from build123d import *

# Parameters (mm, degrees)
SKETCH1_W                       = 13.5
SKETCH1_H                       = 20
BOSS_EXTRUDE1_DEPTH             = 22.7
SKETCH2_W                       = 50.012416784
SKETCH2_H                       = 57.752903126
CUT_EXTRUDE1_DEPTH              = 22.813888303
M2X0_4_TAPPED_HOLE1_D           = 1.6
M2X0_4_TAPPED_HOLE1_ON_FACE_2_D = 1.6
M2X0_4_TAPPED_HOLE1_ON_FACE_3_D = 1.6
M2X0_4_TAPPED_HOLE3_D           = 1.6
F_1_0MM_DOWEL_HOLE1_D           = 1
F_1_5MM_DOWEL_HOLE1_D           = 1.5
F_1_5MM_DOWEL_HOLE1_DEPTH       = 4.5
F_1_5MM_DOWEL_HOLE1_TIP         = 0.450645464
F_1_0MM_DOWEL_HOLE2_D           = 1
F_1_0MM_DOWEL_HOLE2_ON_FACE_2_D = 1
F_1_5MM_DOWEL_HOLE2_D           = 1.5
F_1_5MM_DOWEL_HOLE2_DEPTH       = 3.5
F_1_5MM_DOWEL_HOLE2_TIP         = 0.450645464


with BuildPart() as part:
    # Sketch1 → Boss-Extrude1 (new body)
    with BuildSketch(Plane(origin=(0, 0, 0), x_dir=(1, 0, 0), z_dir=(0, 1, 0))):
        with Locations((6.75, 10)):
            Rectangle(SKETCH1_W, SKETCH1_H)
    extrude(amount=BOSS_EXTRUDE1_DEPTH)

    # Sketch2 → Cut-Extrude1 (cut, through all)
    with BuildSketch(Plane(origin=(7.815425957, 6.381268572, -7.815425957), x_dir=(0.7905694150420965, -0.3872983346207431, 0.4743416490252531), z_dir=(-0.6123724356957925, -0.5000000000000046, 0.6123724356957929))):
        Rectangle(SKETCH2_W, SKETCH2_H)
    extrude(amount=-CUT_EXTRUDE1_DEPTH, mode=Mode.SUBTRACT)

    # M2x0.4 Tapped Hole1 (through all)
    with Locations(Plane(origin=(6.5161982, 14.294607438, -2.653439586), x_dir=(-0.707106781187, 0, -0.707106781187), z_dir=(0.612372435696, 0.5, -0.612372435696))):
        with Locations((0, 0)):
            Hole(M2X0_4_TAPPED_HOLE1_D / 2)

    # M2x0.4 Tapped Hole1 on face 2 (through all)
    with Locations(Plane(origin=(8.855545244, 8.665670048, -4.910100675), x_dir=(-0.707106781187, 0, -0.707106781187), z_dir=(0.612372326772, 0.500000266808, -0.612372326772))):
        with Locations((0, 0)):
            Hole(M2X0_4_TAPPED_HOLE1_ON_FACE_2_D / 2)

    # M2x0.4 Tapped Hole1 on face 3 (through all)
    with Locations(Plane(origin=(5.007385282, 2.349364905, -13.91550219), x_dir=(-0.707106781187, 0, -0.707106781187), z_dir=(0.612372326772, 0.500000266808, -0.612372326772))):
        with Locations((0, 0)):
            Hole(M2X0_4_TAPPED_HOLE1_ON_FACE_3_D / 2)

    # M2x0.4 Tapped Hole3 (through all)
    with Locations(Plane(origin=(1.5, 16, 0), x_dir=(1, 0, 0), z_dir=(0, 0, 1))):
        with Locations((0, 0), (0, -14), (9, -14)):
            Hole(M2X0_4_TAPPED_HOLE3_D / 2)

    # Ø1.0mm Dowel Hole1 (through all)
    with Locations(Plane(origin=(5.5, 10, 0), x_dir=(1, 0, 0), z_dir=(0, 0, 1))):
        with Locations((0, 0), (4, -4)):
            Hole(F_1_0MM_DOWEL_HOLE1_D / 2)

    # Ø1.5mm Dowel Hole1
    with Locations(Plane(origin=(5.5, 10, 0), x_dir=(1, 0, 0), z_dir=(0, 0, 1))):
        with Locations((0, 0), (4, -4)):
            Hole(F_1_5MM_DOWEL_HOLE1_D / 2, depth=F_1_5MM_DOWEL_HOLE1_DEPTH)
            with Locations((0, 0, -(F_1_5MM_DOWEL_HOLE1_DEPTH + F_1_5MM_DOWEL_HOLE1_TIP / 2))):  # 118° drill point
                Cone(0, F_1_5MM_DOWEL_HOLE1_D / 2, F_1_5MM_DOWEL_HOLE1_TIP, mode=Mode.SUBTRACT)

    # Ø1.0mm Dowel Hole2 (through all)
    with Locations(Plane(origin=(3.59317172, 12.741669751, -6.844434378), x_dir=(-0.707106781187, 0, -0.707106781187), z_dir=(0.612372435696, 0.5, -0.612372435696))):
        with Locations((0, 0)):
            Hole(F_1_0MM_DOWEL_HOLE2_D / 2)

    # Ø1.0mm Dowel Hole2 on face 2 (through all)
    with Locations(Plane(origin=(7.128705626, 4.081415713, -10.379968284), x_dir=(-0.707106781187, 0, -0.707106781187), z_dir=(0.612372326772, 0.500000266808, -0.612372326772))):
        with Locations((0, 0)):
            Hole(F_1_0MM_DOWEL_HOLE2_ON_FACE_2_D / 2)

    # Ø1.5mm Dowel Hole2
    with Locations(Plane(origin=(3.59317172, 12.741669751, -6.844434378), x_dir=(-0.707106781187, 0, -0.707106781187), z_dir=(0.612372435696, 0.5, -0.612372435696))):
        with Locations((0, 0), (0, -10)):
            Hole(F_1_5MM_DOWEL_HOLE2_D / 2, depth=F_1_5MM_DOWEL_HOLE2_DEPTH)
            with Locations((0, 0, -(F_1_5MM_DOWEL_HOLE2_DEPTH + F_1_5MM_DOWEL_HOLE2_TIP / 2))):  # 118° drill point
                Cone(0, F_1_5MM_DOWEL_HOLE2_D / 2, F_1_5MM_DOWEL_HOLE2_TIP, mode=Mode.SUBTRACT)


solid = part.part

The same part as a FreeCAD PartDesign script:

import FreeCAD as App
import Part
import Sketcher

doc = App.newDocument("Part")
params = doc.addObject("Spreadsheet::Sheet", "Params")
for row, (alias, value) in enumerate([
    ("sketch1_height", "20 mm"),
    ("sketch1_width", "13.5 mm"),
    ("pad1_length", "22.7 mm"),
    ("sketch3_diameter", "1.6 mm"),
    ("hole_diameter", "1.6 mm"),
    ("sketch4_diameter", "1.6 mm"),
    ("hole2_diameter", "1.6 mm"),
    ("sketch5_diameter", "1.6 mm"),
    ("hole3_diameter", "1.6 mm"),
    ("sketch6_diameter", "1.6 mm"),
    ("hole4_diameter", "1.6 mm"),
    ("sketch7_diameter", "1 mm"),
    ("hole5_diameter", "1 mm"),
    ("sketch8_diameter", "1.5 mm"),
    ("hole6_diameter", "1.5 mm"),
    ("hole6_depth", "4.5 mm"),
    ("sketch9_diameter", "1 mm"),
    ("hole7_diameter", "1 mm"),
    ("sketch10_diameter", "1 mm"),
    ("hole8_diameter", "1 mm"),
    ("sketch11_diameter", "1.5 mm"),
    ("hole9_diameter", "1.5 mm"),
    ("hole9_depth", "3.5 mm"),
], start=1):
    params.set(f"A{row}", alias)
    params.set(f"B{row}", "=" + value)
    params.setAlias(f"B{row}", alias)

body = doc.addObject("PartDesign::Body", "Body")

# Sketch on XZ plane
sketch1 = body.newObject("Sketcher::SketchObject", "Sketch")
sketch1.AttachmentSupport = (doc.getObject("XZ_Plane"), [""])
sketch1.MapMode = "FlatFace"
sketch1.addGeometry([
    Part.LineSegment(App.Vector(0, -20, 0), App.Vector(0, 0, 0)),
    Part.LineSegment(App.Vector(0, 0, 0), App.Vector(14, 0, 0)),
    Part.LineSegment(App.Vector(14, 0, 0), App.Vector(14, -20, 0)),
    Part.LineSegment(App.Vector(14, -20, 0), App.Vector(0, -20, 0)),
], False)
sketch1.addConstraint([
    Sketcher.Constraint("Coincident", 0, 2, 1, 1),
    Sketcher.Constraint("Coincident", 1, 2, 2, 1),
    Sketcher.Constraint("Coincident", 2, 2, 3, 1),
    Sketcher.Constraint("Coincident", 3, 2, 0, 1),
    Sketcher.Constraint("Vertical", 0),
    Sketcher.Constraint("Horizontal", 1),
    Sketcher.Constraint("Vertical", 2),
    Sketcher.Constraint("Horizontal", 3),
    Sketcher.Constraint("Coincident", 0, 2, -1, 1),
    Sketcher.Constraint("DistanceY", 0, 1, 0, 2, 20.0),
    Sketcher.Constraint("DistanceX", 1, 1, 1, 2, 13.5),
])
sketch1.setExpression("Constraints[9]", "Params.sketch1_height")
sketch1.setExpression("Constraints[10]", "Params.sketch1_width")
pad1 = body.newObject("PartDesign::Pad", "Pad")
pad1.Profile = sketch1
pad1.setExpression("Length", "Params.pad1_length")
pad1.Reversed = True

# Sketch on an angled plane
sketch2 = body.newObject("Sketcher::SketchObject", "Sketch001")
sketch2.Placement = App.Placement(App.Vector(7.815426, 6.381269, -7.815426), App.Rotation(App.Vector(0.790569415, -0.387298335, 0.474341649), App.Vector(0, 0.77459667, 0.632455532), App.Vector(-0.612372436, -0.5, 0.612372436), "ZXY"))
sketch2.addGeometry([
    Part.LineSegment(App.Vector(-25, 29, 0), App.Vector(-25, -29, 0)),
    Part.LineSegment(App.Vector(-25, -29, 0), App.Vector(25, -29, 0)),
    Part.LineSegment(App.Vector(25, -29, 0), App.Vector(25, 29, 0)),
    Part.LineSegment(App.Vector(25, 29, 0), App.Vector(-25, 29, 0)),
], False)
sketch2.addConstraint([
    Sketcher.Constraint("Coincident", 0, 2, 1, 1),
    Sketcher.Constraint("Coincident", 1, 2, 2, 1),
    Sketcher.Constraint("Coincident", 2, 2, 3, 1),
    Sketcher.Constraint("Coincident", 3, 2, 0, 1),
    Sketcher.Constraint("Vertical", 0),
    Sketcher.Constraint("Horizontal", 1),
    Sketcher.Constraint("Vertical", 2),
    Sketcher.Constraint("Horizontal", 3),
    Sketcher.Constraint("Symmetric", 0, 2, 2, 2, -1, 1),
    Sketcher.Constraint("DistanceX", 1, 1, 1, 2, 50.012417),
    Sketcher.Constraint("DistanceY", 0, 2, 0, 1, 57.752903),
])
pocket1 = body.newObject("PartDesign::Pocket", "Pocket")
pocket1.Profile = sketch2
pocket1.Type = "ThroughAll"

# Sketch on an angled plane
sketch3 = body.newObject("Sketcher::SketchObject", "Sketch002")
sketch3.Placement = App.Placement(App.Vector(7.815426, 6.381269, -7.815426), App.Rotation(App.Vector(-0.707106781, 0, -0.707106781), App.Vector(-0.353553391, 0.866025404, 0.353553391), App.Vector(0.612372436, 0.5, -0.612372436), "ZXY"))
sketch3.addGeometry(Part.Circle(App.Vector(-2.7, 9.1, 0), App.Vector(0, 0, 1), 0.8), False)
sketch3.addConstraint([
    Sketcher.Constraint("Diameter", 0, 1.6),
    Sketcher.Constraint("DistanceX", 0, 3, -1, 1, 2.731383),
    Sketcher.Constraint("DistanceY", -1, 1, 0, 3, 9.137537),
])
sketch3.setExpression("Constraints[0]", "Params.sketch3_diameter")
doc.recompute()
hole = body.newObject("PartDesign::Hole", "Hole")
hole.Profile = sketch3
hole.ThreadType = "None"
hole.setExpression("Diameter", "Params.hole_diameter")
hole.DepthType = "ThroughAll"

# Sketch on an angled plane
sketch4 = body.newObject("Sketcher::SketchObject", "Sketch003")
sketch4.Placement = App.Placement(App.Vector(7.815425, 6.381272, -7.815425), App.Rotation(App.Vector(-0.707106781, 0, -0.707106781), App.Vector(-0.353553579, 0.86602525, 0.353553579), App.Vector(0.612372327, 0.500000267, -0.612372327), "ZXY"))
sketch4.addGeometry(Part.Circle(App.Vector(-2.8, 2.6, 0), App.Vector(0, 0, 1), 0.8), False)
sketch4.addConstraint([
    Sketcher.Constraint("Diameter", 0, 1.6),
    Sketcher.Constraint("DistanceX", 0, 3, -1, 1, 2.789851),
    Sketcher.Constraint("DistanceY", -1, 1, 0, 3, 2.637796),
])
sketch4.setExpression("Constraints[0]", "Params.sketch4_diameter")
doc.recompute()
hole2 = body.newObject("PartDesign::Hole", "Hole001")
hole2.Profile = sketch4
hole2.ThreadType = "None"
hole2.setExpression("Diameter", "Params.hole2_diameter")
hole2.DepthType = "ThroughAll"

# Sketch on an angled plane
sketch5 = body.newObject("Sketcher::SketchObject", "Sketch004")
sketch5.Placement = App.Placement(App.Vector(7.815424, 6.381271, -7.815424), App.Rotation(App.Vector(-0.707106781, 0, -0.707106781), App.Vector(-0.353553579, 0.86602525, 0.353553579), App.Vector(0.612372327, 0.500000267, -0.612372327), "ZXY"))
sketch5.addGeometry(Part.Circle(App.Vector(6.3, -4.7, 0), App.Vector(0, 0, 1), 0.8), False)
sketch5.addConstraint([
    Sketcher.Constraint("Diameter", 0, 1.6),
    Sketcher.Constraint("DistanceX", -1, 1, 0, 3, 6.29899),
    Sketcher.Constraint("DistanceY", 0, 3, -1, 1, 4.655645),
])
sketch5.setExpression("Constraints[0]", "Params.sketch5_diameter")
doc.recompute()
hole3 = body.newObject("PartDesign::Hole", "Hole002")
hole3.Profile = sketch5
hole3.ThreadType = "None"
hole3.setExpression("Diameter", "Params.hole3_diameter")
hole3.DepthType = "ThroughAll"

# Sketch on XY plane
sketch6 = body.newObject("Sketcher::SketchObject", "Sketch005")
sketch6.AttachmentSupport = (doc.getObject("XY_Plane"), [""])
sketch6.MapMode = "FlatFace"
sketch6.addGeometry([
    Part.Circle(App.Vector(1.5, 16, 0), App.Vector(0, 0, 1), 0.8),
    Part.Circle(App.Vector(1.5, 2, 0), App.Vector(0, 0, 1), 0.8),
    Part.Circle(App.Vector(10.5, 2, 0), App.Vector(0, 0, 1), 0.8),
], False)
sketch6.addConstraint([
    Sketcher.Constraint("Equal", 0, 1),
    Sketcher.Constraint("Equal", 1, 2),
    Sketcher.Constraint("Horizontal", 1, 3, 2, 3),
    Sketcher.Constraint("Vertical", 0, 3, 1, 3),
    Sketcher.Constraint("Diameter", 0, 1.6),
    Sketcher.Constraint("DistanceY", -1, 1, 0, 3, 16.0),
    Sketcher.Constraint("DistanceY", -1, 1, 1, 3, 2.0),
    Sketcher.Constraint("DistanceX", 1, 3, 2, 3, 9.0),
    Sketcher.Constraint("DistanceX", -1, 1, 0, 3, 1.5),
])
sketch6.setExpression("Constraints[4]", "Params.sketch6_diameter")
doc.recompute()
hole4 = body.newObject("PartDesign::Hole", "Hole003")
hole4.Profile = sketch6
hole4.ThreadType = "None"
hole4.setExpression("Diameter", "Params.hole4_diameter")
hole4.DepthType = "ThroughAll"

# Sketch on XY plane
sketch7 = body.newObject("Sketcher::SketchObject", "Sketch006")
sketch7.AttachmentSupport = (doc.getObject("XY_Plane"), [""])
sketch7.MapMode = "FlatFace"
sketch7.addGeometry([
    Part.Circle(App.Vector(5.5, 10, 0), App.Vector(0, 0, 1), 0.5),
    Part.Circle(App.Vector(9.5, 6, 0), App.Vector(0, 0, 1), 0.5),
], False)
sketch7.addConstraint([
    Sketcher.Constraint("Equal", 0, 1),
    Sketcher.Constraint("Diameter", 0, 1.0),
    Sketcher.Constraint("DistanceY", -1, 1, 0, 3, 10.0),
    Sketcher.Constraint("DistanceY", -1, 1, 1, 3, 6.0),
    Sketcher.Constraint("DistanceX", 0, 3, 1, 3, 4.0),
    Sketcher.Constraint("DistanceX", -1, 1, 0, 3, 5.5),
])
sketch7.setExpression("Constraints[1]", "Params.sketch7_diameter")
doc.recompute()
hole5 = body.newObject("PartDesign::Hole", "Hole004")
hole5.Profile = sketch7
hole5.ThreadType = "None"
hole5.setExpression("Diameter", "Params.hole5_diameter")
hole5.DepthType = "ThroughAll"

# Sketch on XY plane
sketch8 = body.newObject("Sketcher::SketchObject", "Sketch007")
sketch8.AttachmentSupport = (doc.getObject("XY_Plane"), [""])
sketch8.MapMode = "FlatFace"
sketch8.addGeometry([
    Part.Circle(App.Vector(5.5, 10, 0), App.Vector(0, 0, 1), 0.8),
    Part.Circle(App.Vector(9.5, 6, 0), App.Vector(0, 0, 1), 0.8),
], False)
sketch8.addConstraint([
    Sketcher.Constraint("Equal", 0, 1),
    Sketcher.Constraint("Diameter", 0, 1.5),
    Sketcher.Constraint("DistanceY", -1, 1, 0, 3, 10.0),
    Sketcher.Constraint("DistanceY", -1, 1, 1, 3, 6.0),
    Sketcher.Constraint("DistanceX", 0, 3, 1, 3, 4.0),
    Sketcher.Constraint("DistanceX", -1, 1, 0, 3, 5.5),
])
sketch8.setExpression("Constraints[1]", "Params.sketch8_diameter")
doc.recompute()
hole6 = body.newObject("PartDesign::Hole", "Hole005")
hole6.Profile = sketch8
hole6.ThreadType = "None"
hole6.setExpression("Diameter", "Params.hole6_diameter")
hole6.DepthType = "Dimension"
hole6.setExpression("Depth", "Params.hole6_depth")
hole6.DrillPoint = "Angled"
hole6.DrillPointAngle = 118

# Sketch on an angled plane
sketch9 = body.newObject("Sketcher::SketchObject", "Sketch008")
sketch9.Placement = App.Placement(App.Vector(7.815426, 6.381269, -7.815426), App.Rotation(App.Vector(-0.707106781, 0, -0.707106781), App.Vector(-0.353553391, 0.866025404, 0.353553391), App.Vector(0.612372436, 0.5, -0.612372436), "ZXY"))
sketch9.addGeometry(Part.Circle(App.Vector(2.3, 7.3, 0), App.Vector(0, 0, 1), 0.5), False)
sketch9.addConstraint([
    Sketcher.Constraint("Diameter", 0, 1.0),
    Sketcher.Constraint("DistanceX", -1, 1, 0, 3, 2.29899),
    Sketcher.Constraint("DistanceY", -1, 1, 0, 3, 7.344359),
])
sketch9.setExpression("Constraints[0]", "Params.sketch9_diameter")
doc.recompute()
hole7 = body.newObject("PartDesign::Hole", "Hole006")
hole7.Profile = sketch9
hole7.ThreadType = "None"
hole7.setExpression("Diameter", "Params.hole7_diameter")
hole7.DepthType = "ThroughAll"

# Sketch on an angled plane
sketch10 = body.newObject("Sketcher::SketchObject", "Sketch009")
sketch10.Placement = App.Placement(App.Vector(7.815424, 6.381272, -7.815424), App.Rotation(App.Vector(-0.707106781, 0, -0.707106781), App.Vector(-0.353553579, 0.86602525, 0.353553579), App.Vector(0.612372327, 0.500000267, -0.612372327), "ZXY"))
sketch10.addGeometry(Part.Circle(App.Vector(2.3, -2.7, 0), App.Vector(0, 0, 1), 0.5), False)
sketch10.addConstraint([
    Sketcher.Constraint("Diameter", 0, 1.0),
    Sketcher.Constraint("DistanceX", -1, 1, 0, 3, 2.29899),
    Sketcher.Constraint("DistanceY", 0, 3, -1, 1, 2.655645),
])
sketch10.setExpression("Constraints[0]", "Params.sketch10_diameter")
doc.recompute()
hole8 = body.newObject("PartDesign::Hole", "Hole007")
hole8.Profile = sketch10
hole8.ThreadType = "None"
hole8.setExpression("Diameter", "Params.hole8_diameter")
hole8.DepthType = "ThroughAll"

# Sketch on an angled plane
sketch11 = body.newObject("Sketcher::SketchObject", "Sketch010")
sketch11.Placement = App.Placement(App.Vector(7.815426, 6.381269, -7.815426), App.Rotation(App.Vector(-0.707106781, 0, -0.707106781), App.Vector(-0.353553391, 0.866025404, 0.353553391), App.Vector(0.612372436, 0.5, -0.612372436), "ZXY"))
sketch11.addGeometry([
    Part.Circle(App.Vector(2.3, 7.3, 0), App.Vector(0, 0, 1), 0.8),
    Part.Circle(App.Vector(2.3, -2.7, 0), App.Vector(0, 0, 1), 0.8),
], False)
sketch11.addConstraint([
    Sketcher.Constraint("Equal", 0, 1),
    Sketcher.Constraint("Vertical", 0, 3, 1, 3),
    Sketcher.Constraint("Diameter", 0, 1.5),
    Sketcher.Constraint("DistanceY", 1, 3, 0, 3, 10.0),
    Sketcher.Constraint("DistanceX", -1, 1, 0, 3, 2.29899),
    Sketcher.Constraint("DistanceY", -1, 1, 0, 3, 7.344359),
])
sketch11.setExpression("Constraints[2]", "Params.sketch11_diameter")
doc.recompute()
hole9 = body.newObject("PartDesign::Hole", "Hole008")
hole9.Profile = sketch11
hole9.ThreadType = "None"
hole9.setExpression("Diameter", "Params.hole9_diameter")
hole9.DepthType = "Dimension"
hole9.setExpression("Depth", "Params.hole9_depth")
hole9.DrillPoint = "Angled"
hole9.DrillPointAngle = 118

doc.recompute()
